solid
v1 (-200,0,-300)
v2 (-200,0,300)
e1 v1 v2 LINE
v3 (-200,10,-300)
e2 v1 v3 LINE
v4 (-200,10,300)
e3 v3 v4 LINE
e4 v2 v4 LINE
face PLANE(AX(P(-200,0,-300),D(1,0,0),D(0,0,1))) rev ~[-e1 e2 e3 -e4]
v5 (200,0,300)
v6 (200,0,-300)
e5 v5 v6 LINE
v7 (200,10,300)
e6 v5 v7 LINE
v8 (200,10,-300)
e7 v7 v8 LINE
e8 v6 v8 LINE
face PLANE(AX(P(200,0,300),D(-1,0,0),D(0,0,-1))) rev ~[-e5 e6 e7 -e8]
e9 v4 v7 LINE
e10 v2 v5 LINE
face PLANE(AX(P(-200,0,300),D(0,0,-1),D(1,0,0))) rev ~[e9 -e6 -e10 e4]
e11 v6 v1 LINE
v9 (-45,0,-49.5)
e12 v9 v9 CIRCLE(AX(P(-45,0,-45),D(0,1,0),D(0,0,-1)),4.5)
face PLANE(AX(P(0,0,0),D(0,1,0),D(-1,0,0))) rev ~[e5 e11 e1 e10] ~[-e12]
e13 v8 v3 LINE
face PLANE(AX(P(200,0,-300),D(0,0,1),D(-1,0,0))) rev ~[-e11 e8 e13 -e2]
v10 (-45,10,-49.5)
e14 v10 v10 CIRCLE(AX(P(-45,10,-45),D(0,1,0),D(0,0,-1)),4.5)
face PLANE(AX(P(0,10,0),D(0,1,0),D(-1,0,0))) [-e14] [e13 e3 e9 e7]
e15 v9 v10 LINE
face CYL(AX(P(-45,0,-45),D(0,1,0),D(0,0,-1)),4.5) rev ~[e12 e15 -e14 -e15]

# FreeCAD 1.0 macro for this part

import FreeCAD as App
import Part
import Sketcher
from FreeCAD import Vector


def add_polygon(sketch, points):
    """Adds a closed chain of lines whose ends are joined by coincident constraints."""
    first, n = sketch.GeometryCount, len(points)
    for a, b in zip(points, points[1:] + points[:1]):
        sketch.addGeometry(Part.LineSegment(App.Vector(*a, 0), App.Vector(*b, 0)), False)
    for i in range(n):
        sketch.addConstraint(Sketcher.Constraint("Coincident", first + i, 2, first + (i + 1) % n, 1))

doc = App.newDocument("Part")
body = doc.addObject("PartDesign::Body", "Body")

sketch1 = body.newObject("Sketcher::SketchObject", "Sketch")
sketch1.AttachmentSupport = (doc.getObject("XZ_Plane"), [""])
sketch1.MapMode = "FlatFace"
add_polygon(sketch1, [(200, 300), (200, -300), (-200, -300), (-200, 300)])
sketch1.addConstraint([
    Sketcher.Constraint("Vertical", 0),
    Sketcher.Constraint("Horizontal", 1),
    Sketcher.Constraint("Vertical", 2),
    Sketcher.Constraint("Horizontal", 3),
    Sketcher.Constraint("Symmetric", 0, 2, 2, 2, -1, 1),
    Sketcher.Constraint("DistanceX", 1, 2, 1, 1, 400.0),
    Sketcher.Constraint("DistanceY", 0, 2, 0, 1, 600.0),
])
pad1 = body.newObject("PartDesign::Pad", "Pad")
pad1.Profile = sketch1
pad1.Length = 10
pad1.Reversed = True

sketch2 = body.newObject("Sketcher::SketchObject", "Sketch001")
sketch2.AttachmentSupport = (doc.getObject("XZ_Plane"), [""])
sketch2.MapMode = "FlatFace"
sketch2.addGeometry(Part.Circle(Vector(-45, -45, 0), Vector(0, 0, 1), 4.5), False)
sketch2.addConstraint([
    Sketcher.Constraint("Diameter", 0, 9.0),
    Sketcher.Constraint("DistanceX", 0, 3, -1, 1, 45.0),
    Sketcher.Constraint("DistanceY", 0, 3, -1, 1, 45.0),
])
doc.recompute()
hole = body.newObject("PartDesign::Hole", "Hole")
hole.Profile = sketch2
hole.ThreadType = "None"
hole.Diameter = 9
hole.DepthType = "ThroughAll"

doc.recompute()
